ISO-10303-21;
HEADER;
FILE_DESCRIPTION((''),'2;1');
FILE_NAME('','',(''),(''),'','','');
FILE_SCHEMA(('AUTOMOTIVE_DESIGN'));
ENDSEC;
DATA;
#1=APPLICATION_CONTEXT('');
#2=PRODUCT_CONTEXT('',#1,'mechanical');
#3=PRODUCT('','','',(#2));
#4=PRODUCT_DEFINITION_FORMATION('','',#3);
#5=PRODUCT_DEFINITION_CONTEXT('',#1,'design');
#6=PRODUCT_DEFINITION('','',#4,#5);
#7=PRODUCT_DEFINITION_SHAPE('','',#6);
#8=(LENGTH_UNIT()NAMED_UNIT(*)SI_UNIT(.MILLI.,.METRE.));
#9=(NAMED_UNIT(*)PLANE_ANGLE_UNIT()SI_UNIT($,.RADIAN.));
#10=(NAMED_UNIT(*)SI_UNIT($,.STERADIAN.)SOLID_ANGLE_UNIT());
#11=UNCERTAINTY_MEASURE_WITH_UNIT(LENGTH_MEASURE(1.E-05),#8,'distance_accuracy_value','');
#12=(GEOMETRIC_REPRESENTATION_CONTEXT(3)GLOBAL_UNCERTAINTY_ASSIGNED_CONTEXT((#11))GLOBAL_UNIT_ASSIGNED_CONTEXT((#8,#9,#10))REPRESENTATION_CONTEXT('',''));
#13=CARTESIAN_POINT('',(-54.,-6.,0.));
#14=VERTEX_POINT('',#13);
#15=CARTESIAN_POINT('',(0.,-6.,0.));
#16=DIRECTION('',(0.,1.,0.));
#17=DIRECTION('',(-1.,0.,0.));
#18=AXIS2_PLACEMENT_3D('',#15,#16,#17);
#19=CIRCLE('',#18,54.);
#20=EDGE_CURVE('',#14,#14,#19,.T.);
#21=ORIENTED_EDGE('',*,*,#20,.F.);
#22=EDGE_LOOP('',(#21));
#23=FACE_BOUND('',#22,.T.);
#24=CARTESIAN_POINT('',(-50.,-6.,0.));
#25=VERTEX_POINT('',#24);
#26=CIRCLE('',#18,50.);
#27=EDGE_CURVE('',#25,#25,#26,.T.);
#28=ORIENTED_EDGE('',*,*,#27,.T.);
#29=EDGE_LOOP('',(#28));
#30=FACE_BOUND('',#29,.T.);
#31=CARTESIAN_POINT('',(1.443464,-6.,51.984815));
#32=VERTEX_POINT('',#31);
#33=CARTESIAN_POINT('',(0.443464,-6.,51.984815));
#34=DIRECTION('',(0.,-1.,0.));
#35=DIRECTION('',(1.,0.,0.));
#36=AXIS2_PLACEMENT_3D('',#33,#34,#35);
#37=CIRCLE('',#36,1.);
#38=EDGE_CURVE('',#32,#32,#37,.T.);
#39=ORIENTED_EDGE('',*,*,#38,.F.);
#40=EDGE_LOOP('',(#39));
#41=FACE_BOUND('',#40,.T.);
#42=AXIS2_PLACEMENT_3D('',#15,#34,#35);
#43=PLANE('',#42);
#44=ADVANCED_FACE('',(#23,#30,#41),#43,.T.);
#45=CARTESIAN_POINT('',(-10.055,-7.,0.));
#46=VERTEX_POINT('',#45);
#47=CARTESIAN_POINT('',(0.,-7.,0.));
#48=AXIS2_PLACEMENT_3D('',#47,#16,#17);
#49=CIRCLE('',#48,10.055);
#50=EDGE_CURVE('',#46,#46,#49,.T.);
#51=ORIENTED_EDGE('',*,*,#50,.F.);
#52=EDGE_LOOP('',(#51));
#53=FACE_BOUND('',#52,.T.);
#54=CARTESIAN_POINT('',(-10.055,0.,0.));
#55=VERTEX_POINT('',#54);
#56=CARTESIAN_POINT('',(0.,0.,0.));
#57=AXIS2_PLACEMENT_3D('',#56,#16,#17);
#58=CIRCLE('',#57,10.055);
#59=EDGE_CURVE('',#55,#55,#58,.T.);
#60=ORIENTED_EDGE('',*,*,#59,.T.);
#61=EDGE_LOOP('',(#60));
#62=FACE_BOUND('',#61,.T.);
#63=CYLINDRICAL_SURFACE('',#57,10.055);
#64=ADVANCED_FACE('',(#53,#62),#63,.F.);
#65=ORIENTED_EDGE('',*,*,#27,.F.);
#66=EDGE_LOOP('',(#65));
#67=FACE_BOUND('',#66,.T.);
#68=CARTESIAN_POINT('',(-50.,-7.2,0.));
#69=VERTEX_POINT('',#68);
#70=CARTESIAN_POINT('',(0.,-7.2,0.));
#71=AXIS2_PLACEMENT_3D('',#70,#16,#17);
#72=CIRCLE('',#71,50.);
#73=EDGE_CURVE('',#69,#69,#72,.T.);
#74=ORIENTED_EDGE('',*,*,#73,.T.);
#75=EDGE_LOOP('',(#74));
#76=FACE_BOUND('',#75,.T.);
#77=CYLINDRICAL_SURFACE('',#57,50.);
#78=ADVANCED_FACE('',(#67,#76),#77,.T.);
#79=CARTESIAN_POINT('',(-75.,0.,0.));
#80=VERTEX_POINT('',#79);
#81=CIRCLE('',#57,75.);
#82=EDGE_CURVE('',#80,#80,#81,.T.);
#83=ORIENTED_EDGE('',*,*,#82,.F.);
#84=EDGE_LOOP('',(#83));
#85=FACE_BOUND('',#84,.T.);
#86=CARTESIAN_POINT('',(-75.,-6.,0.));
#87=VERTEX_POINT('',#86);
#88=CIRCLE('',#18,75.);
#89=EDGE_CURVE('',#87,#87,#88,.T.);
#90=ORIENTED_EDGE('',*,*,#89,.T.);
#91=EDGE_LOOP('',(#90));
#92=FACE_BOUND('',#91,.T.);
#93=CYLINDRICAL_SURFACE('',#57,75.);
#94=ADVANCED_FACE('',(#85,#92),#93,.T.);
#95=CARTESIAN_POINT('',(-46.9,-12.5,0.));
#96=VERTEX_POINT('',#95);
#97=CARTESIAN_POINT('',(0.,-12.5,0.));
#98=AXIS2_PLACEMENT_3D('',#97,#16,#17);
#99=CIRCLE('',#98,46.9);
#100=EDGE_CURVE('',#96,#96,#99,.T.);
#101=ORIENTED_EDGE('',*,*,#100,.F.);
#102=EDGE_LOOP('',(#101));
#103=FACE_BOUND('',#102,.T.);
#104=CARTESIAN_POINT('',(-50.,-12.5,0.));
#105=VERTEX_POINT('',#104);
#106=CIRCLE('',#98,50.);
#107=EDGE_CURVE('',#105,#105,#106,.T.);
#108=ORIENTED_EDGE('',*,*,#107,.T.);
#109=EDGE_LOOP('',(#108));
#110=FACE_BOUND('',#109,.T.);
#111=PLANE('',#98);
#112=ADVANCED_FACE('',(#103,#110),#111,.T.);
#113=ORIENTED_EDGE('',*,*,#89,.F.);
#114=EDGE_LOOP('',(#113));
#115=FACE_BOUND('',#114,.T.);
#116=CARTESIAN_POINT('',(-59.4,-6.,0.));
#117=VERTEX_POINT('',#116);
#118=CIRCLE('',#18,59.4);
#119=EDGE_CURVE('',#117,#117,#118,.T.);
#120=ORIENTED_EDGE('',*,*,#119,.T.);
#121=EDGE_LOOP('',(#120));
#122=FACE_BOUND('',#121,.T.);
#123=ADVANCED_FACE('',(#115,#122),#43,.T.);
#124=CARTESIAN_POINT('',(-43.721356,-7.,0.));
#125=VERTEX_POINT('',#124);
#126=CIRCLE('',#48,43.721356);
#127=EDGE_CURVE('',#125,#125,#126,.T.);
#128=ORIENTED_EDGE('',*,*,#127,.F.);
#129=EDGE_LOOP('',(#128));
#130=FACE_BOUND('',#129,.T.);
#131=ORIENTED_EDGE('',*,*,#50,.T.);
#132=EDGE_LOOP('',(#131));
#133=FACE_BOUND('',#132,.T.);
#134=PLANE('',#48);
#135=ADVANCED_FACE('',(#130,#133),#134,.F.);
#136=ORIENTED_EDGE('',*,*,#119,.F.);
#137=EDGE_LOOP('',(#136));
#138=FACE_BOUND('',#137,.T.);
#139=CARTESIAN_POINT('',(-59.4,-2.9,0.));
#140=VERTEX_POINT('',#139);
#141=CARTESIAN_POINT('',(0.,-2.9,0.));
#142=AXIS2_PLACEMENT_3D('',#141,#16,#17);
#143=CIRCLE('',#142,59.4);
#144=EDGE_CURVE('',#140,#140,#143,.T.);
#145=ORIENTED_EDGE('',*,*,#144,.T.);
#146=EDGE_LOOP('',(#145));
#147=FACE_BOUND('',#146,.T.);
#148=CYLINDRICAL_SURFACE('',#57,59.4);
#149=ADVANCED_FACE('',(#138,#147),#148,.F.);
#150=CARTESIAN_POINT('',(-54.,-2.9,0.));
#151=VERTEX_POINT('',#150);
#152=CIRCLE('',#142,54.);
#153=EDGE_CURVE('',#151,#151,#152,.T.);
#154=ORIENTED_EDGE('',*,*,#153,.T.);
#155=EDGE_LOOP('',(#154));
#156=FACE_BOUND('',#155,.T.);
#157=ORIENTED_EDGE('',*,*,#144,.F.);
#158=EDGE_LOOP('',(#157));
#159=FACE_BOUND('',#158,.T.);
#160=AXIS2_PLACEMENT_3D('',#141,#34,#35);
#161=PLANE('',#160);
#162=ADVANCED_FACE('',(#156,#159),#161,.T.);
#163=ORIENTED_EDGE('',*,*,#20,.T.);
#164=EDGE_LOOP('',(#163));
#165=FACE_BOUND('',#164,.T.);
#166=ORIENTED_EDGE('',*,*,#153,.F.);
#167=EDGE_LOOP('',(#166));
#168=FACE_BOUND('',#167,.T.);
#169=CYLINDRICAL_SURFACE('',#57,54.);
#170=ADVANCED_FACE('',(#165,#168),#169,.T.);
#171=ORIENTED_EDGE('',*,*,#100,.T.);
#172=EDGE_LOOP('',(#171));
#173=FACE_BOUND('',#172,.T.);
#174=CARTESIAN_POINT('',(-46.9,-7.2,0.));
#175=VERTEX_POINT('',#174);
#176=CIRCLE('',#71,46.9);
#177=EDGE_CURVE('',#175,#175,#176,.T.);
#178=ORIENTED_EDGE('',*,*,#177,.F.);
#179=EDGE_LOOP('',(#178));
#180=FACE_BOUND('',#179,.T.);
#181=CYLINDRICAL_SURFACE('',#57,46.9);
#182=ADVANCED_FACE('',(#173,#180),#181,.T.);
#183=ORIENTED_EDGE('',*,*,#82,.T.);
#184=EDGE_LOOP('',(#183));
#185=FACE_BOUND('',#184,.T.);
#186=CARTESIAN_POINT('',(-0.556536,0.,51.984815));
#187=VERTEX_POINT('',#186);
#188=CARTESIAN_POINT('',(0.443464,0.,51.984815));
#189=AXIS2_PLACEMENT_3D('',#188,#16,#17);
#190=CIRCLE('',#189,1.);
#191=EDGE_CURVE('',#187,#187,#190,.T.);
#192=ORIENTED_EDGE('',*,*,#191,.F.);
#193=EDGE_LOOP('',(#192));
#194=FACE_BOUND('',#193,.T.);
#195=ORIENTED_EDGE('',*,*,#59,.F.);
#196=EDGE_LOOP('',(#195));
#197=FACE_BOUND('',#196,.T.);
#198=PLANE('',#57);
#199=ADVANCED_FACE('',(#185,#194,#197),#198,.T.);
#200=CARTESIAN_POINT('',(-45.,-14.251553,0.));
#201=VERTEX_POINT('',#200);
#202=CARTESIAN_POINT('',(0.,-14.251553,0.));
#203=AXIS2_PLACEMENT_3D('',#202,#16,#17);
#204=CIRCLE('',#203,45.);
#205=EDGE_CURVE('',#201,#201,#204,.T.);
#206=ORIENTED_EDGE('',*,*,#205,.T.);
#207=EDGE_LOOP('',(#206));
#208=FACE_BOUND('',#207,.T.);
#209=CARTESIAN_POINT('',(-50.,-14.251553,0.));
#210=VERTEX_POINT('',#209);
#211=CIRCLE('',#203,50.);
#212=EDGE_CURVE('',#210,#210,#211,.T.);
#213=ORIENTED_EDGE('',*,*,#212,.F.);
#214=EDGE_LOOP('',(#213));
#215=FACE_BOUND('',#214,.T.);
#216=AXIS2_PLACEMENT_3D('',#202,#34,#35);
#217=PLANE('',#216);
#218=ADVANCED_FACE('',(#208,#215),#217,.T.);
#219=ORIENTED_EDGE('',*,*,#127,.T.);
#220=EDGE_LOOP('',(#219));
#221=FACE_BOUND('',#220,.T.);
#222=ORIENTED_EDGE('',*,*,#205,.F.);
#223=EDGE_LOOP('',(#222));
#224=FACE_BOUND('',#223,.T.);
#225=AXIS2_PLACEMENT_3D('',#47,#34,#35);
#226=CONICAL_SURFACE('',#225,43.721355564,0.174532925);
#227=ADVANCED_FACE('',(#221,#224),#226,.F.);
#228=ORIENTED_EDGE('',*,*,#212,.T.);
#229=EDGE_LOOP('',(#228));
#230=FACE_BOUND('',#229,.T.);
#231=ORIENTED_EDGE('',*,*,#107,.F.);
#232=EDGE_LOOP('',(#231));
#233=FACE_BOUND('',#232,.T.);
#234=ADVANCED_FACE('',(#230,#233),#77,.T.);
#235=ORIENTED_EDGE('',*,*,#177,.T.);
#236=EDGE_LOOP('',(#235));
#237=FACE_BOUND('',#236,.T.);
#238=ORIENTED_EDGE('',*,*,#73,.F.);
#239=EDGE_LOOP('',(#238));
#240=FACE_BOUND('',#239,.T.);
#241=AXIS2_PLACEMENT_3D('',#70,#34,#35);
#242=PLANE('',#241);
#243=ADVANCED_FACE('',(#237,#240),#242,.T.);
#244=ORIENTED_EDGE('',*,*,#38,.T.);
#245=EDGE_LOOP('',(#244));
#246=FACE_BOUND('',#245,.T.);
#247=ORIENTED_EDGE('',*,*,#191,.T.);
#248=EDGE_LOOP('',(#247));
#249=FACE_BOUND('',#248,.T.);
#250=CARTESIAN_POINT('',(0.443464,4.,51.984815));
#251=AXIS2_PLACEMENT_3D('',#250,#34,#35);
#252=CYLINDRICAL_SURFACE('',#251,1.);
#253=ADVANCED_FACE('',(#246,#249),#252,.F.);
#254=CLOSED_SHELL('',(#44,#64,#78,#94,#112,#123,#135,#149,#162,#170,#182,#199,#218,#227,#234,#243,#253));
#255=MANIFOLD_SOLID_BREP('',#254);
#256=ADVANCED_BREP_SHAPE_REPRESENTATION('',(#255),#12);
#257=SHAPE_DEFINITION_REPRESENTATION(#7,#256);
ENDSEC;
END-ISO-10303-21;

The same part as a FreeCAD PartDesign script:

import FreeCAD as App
import Part
import Sketcher
from FreeCAD import Vector
Q = App.Units.Quantity


def add_polygon(sketch, points):
    """Adds a closed chain of lines whose ends are joined by coincident constraints."""
    first, n = sketch.GeometryCount, len(points)
    for a, b in zip(points, points[1:] + points[:1]):
        sketch.addGeometry(Part.LineSegment(App.Vector(*a, 0), App.Vector(*b, 0)), False)
    for i in range(n):
        sketch.addConstraint(Sketcher.Constraint("Coincident", first + i, 2, first + (i + 1) % n, 1))

doc = App.newDocument("Part")
params = doc.addObject("Spreadsheet::Sheet", "Params")
for row, (alias, value) in enumerate([
    ("sketch1_width", "4 mm"),
    ("sketch1_width2", "5 mm"),
    ("sketch1_height", "7 mm"),
    ("sketch1_height2", "6 mm"),
    ("sketch1_width3", "15.6 mm"),
    ("revolution_angle", "360 deg"),
    ("sketch2_diameter", "2 mm"),
    ("pocket1_length", "10 mm"),
], start=1):
    params.set(f"A{row}", alias)
    params.set(f"B{row}", "=" + value)
    params.setAlias(f"B{row}", alias)

body = doc.addObject("PartDesign::Body", "Body")

sketch1 = body.newObject("Sketcher::SketchObject", "Sketch")
sketch1.AttachmentSupport = (doc.getObject("XY_Plane"), [""])
sketch1.MapMode = "FlatFace"
add_polygon(sketch1, [(-10.1, -7), (-10.1, 0), (-75, 0), (-75, -6), (-59.4, -6), (-59.4, -2.9), (-54, -2.9), (-54, -6), (-50, -6), (-50, -7.2), (-46.9, -7.2), (-46.9, -12.5), (-50, -12.5), (-50, -14.3), (-45, -14.3), (-43.7, -7)])
sketch1.addConstraint([
    Sketcher.Constraint("Vertical", 0),
    Sketcher.Constraint("Horizontal", 1),
    Sketcher.Constraint("Vertical", 2),
    Sketcher.Constraint("Horizontal", 3),
    Sketcher.Constraint("Vertical", 4),
    Sketcher.Constraint("Horizontal", 5),
    Sketcher.Constraint("Vertical", 6),
    Sketcher.Constraint("Horizontal", 7),
    Sketcher.Constraint("Vertical", 8),
    Sketcher.Constraint("Horizontal", 9),
    Sketcher.Constraint("Vertical", 10),
    Sketcher.Constraint("Horizontal", 11),
    Sketcher.Constraint("Vertical", 12),
    Sketcher.Constraint("Horizontal", 13),
    Sketcher.Constraint("Horizontal", 15),
    Sketcher.Constraint("PointOnObject", 0, 2, -1),
    Sketcher.Constraint("Horizontal", 3, 2, 6, 2),
    Sketcher.Constraint("Vertical", 8, 2, 11, 2),
    Sketcher.Constraint("Equal", 11, 4),
    Sketcher.Constraint("DistanceX", 7, 1, 7, 2, 4.0),
    Sketcher.Constraint("DistanceX", 13, 1, 13, 2, 5.0),
    Sketcher.Constraint("DistanceY", 0, 1, 0, 2, 7.0),
    Sketcher.Constraint("DistanceY", 2, 2, 2, 1, 6.0),
    Sketcher.Constraint("Angle", 14, Q("80 deg")),
    Sketcher.Constraint("DistanceX", 3, 1, 3, 2, 15.6),
    Sketcher.Constraint("DistanceX", 5, 1, 5, 2, 5.4),
    Sketcher.Constraint("DistanceX", 9, 1, 9, 2, 3.1),
    Sketcher.Constraint("DistanceY", 8, 2, 8, 1, 1.2),
    Sketcher.Constraint("DistanceY", 10, 2, 10, 1, 5.3),
    Sketcher.Constraint("DistanceX", 1, 2, -1, 1, 75.0),
    Sketcher.Constraint("DistanceX", 1, 2, 1, 1, 64.945),
    Sketcher.Constraint("Distance", 14, 7.36342),
])
sketch1.setExpression("Constraints[35]", "Params.sketch1_width")
sketch1.setExpression("Constraints[36]", "Params.sketch1_width2")
sketch1.setExpression("Constraints[37]", "Params.sketch1_height")
sketch1.setExpression("Constraints[38]", "Params.sketch1_height2")
sketch1.setExpression("Constraints[40]", "Params.sketch1_width3")
revolution = body.newObject("PartDesign::Revolution", "Revolution")
revolution.Profile = sketch1
revolution.ReferenceAxis = (sketch1, ["V_Axis"])
revolution.setExpression("Angle", "Params.revolution_angle")

sketch2 = body.newObject("Sketcher::SketchObject", "Sketch001")
sketch2.AttachmentSupport = (doc.getObject("XZ_Plane"), [""])
sketch2.MapMode = "FlatFace"
sketch2.AttachmentOffset = App.Placement(Vector(0, 0, 6), App.Rotation())
sketch2.addGeometry(Part.Circle(Vector(0.4, 52, 0), Vector(0, 0, 1), 1), False)
sketch2.addConstraint([
    Sketcher.Constraint("Diameter", 0, 2.0),
    Sketcher.Constraint("DistanceX", -1, 1, 0, 3, 0.443464),
    Sketcher.Constraint("DistanceY", -1, 1, 0, 3, 51.984815),
])
sketch2.setExpression("Constraints[0]", "Params.sketch2_diameter")
pocket1 = body.newObject("PartDesign::Pocket", "Pocket")
pocket1.Profile = sketch2
pocket1.setExpression("Length", "Params.pocket1_length")

doc.recompute()
